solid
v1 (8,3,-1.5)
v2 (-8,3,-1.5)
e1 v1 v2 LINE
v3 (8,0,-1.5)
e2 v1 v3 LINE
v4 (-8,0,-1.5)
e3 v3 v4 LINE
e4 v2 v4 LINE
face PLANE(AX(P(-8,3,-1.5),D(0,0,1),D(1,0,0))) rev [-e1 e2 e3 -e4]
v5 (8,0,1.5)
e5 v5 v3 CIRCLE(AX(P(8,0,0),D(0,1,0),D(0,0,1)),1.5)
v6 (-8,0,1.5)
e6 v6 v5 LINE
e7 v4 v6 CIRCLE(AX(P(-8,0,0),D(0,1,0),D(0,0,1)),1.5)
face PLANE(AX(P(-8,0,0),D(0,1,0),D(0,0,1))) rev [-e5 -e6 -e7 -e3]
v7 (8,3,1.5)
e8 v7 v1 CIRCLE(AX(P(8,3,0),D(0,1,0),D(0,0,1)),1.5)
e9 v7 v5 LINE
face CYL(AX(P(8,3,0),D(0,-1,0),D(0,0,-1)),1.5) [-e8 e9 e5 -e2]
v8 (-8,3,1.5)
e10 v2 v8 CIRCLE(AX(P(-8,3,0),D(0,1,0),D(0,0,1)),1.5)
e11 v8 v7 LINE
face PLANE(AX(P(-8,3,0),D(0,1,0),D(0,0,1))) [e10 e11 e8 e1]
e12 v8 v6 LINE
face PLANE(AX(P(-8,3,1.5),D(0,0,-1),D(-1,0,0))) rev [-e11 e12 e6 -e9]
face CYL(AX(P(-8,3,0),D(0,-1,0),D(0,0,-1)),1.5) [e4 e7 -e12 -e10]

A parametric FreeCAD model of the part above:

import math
import FreeCAD as App
import Part
import Sketcher

V = App.Vector
Q = App.Units.Quantity

doc = App.newDocument("Part")
body = doc.addObject("PartDesign::Body", "Body")

sketch1 = body.newObject("Sketcher::SketchObject", "Sketch")
sketch1.AttachmentSupport = (doc.getObject("XZ_Plane"), [""])
sketch1.MapMode = "FlatFace"
sketch1.addGeometry(Part.LineSegment(V(8, -1.5, 0), V(-8, -1.5, 0)), False)
sketch1.addGeometry(Part.ArcOfCircle(Part.Circle(V(-8, 0, 0), V(0, 0, 1), 1.5), math.radians(90), math.radians(270)), False)
sketch1.addGeometry(Part.LineSegment(V(-8, 1.5, 0), V(8, 1.5, 0)), False)
sketch1.addGeometry(Part.ArcOfCircle(Part.Circle(V(8, 0, 0), V(0, 0, 1), 1.5), math.radians(-90), math.radians(90)), False)
sketch1.addConstraint(Sketcher.Constraint("Tangent", 0, 2, 1, 2))
sketch1.addConstraint(Sketcher.Constraint("Tangent", 1, 1, 2, 1))
sketch1.addConstraint(Sketcher.Constraint("Tangent", 2, 2, 3, 2))
sketch1.addConstraint(Sketcher.Constraint("Tangent", 3, 1, 0, 1))
sketch1.addConstraint(Sketcher.Constraint("Horizontal", 0))
sketch1.addConstraint(Sketcher.Constraint("Horizontal", 2))
sketch1.addConstraint(Sketcher.Constraint("Symmetric", 1, 3, 3, 3, -1, 1))
sketch1.addConstraint(Sketcher.Constraint("Radius", 1, Q("1.5 mm")))
sketch1.addConstraint(Sketcher.Constraint("DistanceX", 0, 2, 0, 1, Q("16 mm")))
pad1 = body.newObject("PartDesign::Pad", "Pad")
pad1.Profile = sketch1
pad1.Length = 3
pad1.Reversed = True

doc.recompute()
